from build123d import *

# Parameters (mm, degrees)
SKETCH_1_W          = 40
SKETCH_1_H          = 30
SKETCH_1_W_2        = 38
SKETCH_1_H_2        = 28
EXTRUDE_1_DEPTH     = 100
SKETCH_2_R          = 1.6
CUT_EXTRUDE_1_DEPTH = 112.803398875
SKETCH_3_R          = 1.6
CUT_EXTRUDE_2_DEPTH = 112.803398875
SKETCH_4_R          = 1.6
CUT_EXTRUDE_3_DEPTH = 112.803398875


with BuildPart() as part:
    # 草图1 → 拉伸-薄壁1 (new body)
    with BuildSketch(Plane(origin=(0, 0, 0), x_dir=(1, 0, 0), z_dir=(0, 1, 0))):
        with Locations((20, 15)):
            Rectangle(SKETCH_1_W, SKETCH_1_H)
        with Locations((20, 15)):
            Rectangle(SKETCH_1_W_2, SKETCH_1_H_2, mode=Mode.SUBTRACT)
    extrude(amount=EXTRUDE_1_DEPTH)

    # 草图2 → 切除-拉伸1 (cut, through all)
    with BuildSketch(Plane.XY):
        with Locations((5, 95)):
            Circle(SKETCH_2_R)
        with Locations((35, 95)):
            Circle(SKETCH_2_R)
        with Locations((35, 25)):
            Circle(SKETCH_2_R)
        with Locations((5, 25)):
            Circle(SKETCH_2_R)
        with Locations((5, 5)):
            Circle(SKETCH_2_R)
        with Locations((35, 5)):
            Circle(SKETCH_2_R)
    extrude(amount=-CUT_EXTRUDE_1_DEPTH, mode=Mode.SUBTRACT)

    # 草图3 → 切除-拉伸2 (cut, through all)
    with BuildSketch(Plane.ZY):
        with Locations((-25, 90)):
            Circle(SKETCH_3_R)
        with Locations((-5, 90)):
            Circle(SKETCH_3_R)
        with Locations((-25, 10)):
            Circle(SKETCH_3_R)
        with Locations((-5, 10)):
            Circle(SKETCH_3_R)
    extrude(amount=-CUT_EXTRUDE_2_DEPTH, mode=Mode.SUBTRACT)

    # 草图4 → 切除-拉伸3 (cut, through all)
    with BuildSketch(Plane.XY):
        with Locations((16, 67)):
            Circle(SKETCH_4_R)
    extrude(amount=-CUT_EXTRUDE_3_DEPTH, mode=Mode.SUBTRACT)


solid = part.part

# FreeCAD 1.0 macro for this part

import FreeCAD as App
import Part
import Sketcher

V = App.Vector
Q = App.Units.Quantity

doc = App.newDocument("Part")
body = doc.addObject("PartDesign::Body", "Body")

# Sketch on XZ plane
sketch1 = body.newObject("Sketcher::SketchObject", "Sketch")
sketch1.AttachmentSupport = (doc.getObject("XZ_Plane"), [""])
sketch1.MapMode = "FlatFace"
sketch1.addGeometry(Part.LineSegment(V(0, -30, 0), V(0, 0, 0)), False)
sketch1.addGeometry(Part.LineSegment(V(0, 0, 0), V(40, 0, 0)), False)
sketch1.addGeometry(Part.LineSegment(V(40, 0, 0), V(40, -30, 0)), False)
sketch1.addGeometry(Part.LineSegment(V(40, -30, 0), V(0, -30, 0)), False)
sketch1.addGeometry(Part.LineSegment(V(39, -1, 0), V(1, -1, 0)), False)
sketch1.addGeometry(Part.LineSegment(V(1, -1, 0), V(1, -29, 0)), False)
sketch1.addGeometry(Part.LineSegment(V(1, -29, 0), V(39, -29, 0)), False)
sketch1.addGeometry(Part.LineSegment(V(39, -29, 0), V(39, -1, 0)), False)
sketch1.addConstraint(Sketcher.Constraint("Coincident", 0, 2, 1, 1))
sketch1.addConstraint(Sketcher.Constraint("Coincident", 1, 2, 2, 1))
sketch1.addConstraint(Sketcher.Constraint("Coincident", 2, 2, 3, 1))
sketch1.addConstraint(Sketcher.Constraint("Coincident", 3, 2, 0, 1))
sketch1.addConstraint(Sketcher.Constraint("Coincident", 4, 2, 5, 1))
sketch1.addConstraint(Sketcher.Constraint("Coincident", 5, 2, 6, 1))
sketch1.addConstraint(Sketcher.Constraint("Coincident", 6, 2, 7, 1))
sketch1.addConstraint(Sketcher.Constraint("Coincident", 7, 2, 4, 1))
sketch1.addConstraint(Sketcher.Constraint("Vertical", 0))
sketch1.addConstraint(Sketcher.Constraint("Horizontal", 1))
sketch1.addConstraint(Sketcher.Constraint("Vertical", 2))
sketch1.addConstraint(Sketcher.Constraint("Horizontal", 3))
sketch1.addConstraint(Sketcher.Constraint("Horizontal", 4))
sketch1.addConstraint(Sketcher.Constraint("Vertical", 5))
sketch1.addConstraint(Sketcher.Constraint("Horizontal", 6))
sketch1.addConstraint(Sketcher.Constraint("Vertical", 7))
sketch1.addConstraint(Sketcher.Constraint("Coincident", 0, 2, -1, 1))
sketch1.addConstraint(Sketcher.Constraint("DistanceX", 1, 1, 1, 2, Q("40 mm")))
sketch1.addConstraint(Sketcher.Constraint("DistanceX", 4, 2, 4, 1, Q("38 mm")))
sketch1.addConstraint(Sketcher.Constraint("DistanceY", 0, 1, 0, 2, Q("30 mm")))
sketch1.addConstraint(Sketcher.Constraint("DistanceY", 5, 2, 5, 1, Q("28 mm")))
sketch1.addConstraint(Sketcher.Constraint("DistanceX", -1, 1, 4, 2, Q("1 mm")))
sketch1.addConstraint(Sketcher.Constraint("DistanceY", 4, 2, -1, 1, Q("1 mm")))
pad1 = body.newObject("PartDesign::Pad", "Pad")
pad1.Profile = sketch1
pad1.Length = 100
pad1.Reversed = True

# Sketch on XY plane
sketch2 = body.newObject("Sketcher::SketchObject", "Sketch001")
sketch2.AttachmentSupport = (doc.getObject("XY_Plane"), [""])
sketch2.MapMode = "FlatFace"
sketch2.addGeometry(Part.Circle(V(5, 95, 0), V(0, 0, 1), 1.6), False)
sketch2.addGeometry(Part.Circle(V(35, 95, 0), V(0, 0, 1), 1.6), False)
sketch2.addGeometry(Part.Circle(V(35, 25, 0), V(0, 0, 1), 1.6), False)
sketch2.addGeometry(Part.Circle(V(5, 25, 0), V(0, 0, 1), 1.6), False)
sketch2.addGeometry(Part.Circle(V(5, 5, 0), V(0, 0, 1), 1.6), False)
sketch2.addGeometry(Part.Circle(V(35, 5, 0), V(0, 0, 1), 1.6), False)
sketch2.addConstraint(Sketcher.Constraint("Equal", 0, 1))
sketch2.addConstraint(Sketcher.Constraint("Equal", 1, 2))
sketch2.addConstraint(Sketcher.Constraint("Equal", 2, 3))
sketch2.addConstraint(Sketcher.Constraint("Equal", 3, 4))
sketch2.addConstraint(Sketcher.Constraint("Equal", 4, 5))
sketch2.addConstraint(Sketcher.Constraint("Horizontal", 0, 3, 1, 3))
sketch2.addConstraint(Sketcher.Constraint("Horizontal", 2, 3, 3, 3))
sketch2.addConstraint(Sketcher.Constraint("Horizontal", 4, 3, 5, 3))
sketch2.addConstraint(Sketcher.Constraint("Vertical", 1, 3, 2, 3))
sketch2.addConstraint(Sketcher.Constraint("Vertical", 0, 3, 3, 3))
sketch2.addConstraint(Sketcher.Constraint("Vertical", 3, 3, 4, 3))
sketch2.addConstraint(Sketcher.Constraint("Vertical", 2, 3, 5, 3))
sketch2.addConstraint(Sketcher.Constraint("Diameter", 0, Q("3.2 mm")))
sketch2.addConstraint(Sketcher.Constraint("DistanceX", -1, 1, 0, 3, Q("5 mm")))
sketch2.addConstraint(Sketcher.Constraint("DistanceY", -1, 1, 0, 3, Q("95 mm")))
sketch2.addConstraint(Sketcher.Constraint("DistanceX", -1, 1, 1, 3, Q("35 mm")))
sketch2.addConstraint(Sketcher.Constraint("DistanceY", -1, 1, 2, 3, Q("25 mm")))
sketch2.addConstraint(Sketcher.Constraint("DistanceY", -1, 1, 4, 3, Q("5 mm")))
pocket1 = body.newObject("PartDesign::Pocket", "Pocket")
pocket1.Profile = sketch2
pocket1.Type = "ThroughAll"

# Sketch on YZ plane
sketch3 = body.newObject("Sketcher::SketchObject", "Sketch002")
sketch3.AttachmentSupport = (doc.getObject("YZ_Plane"), [""])
sketch3.MapMode = "FlatFace"
sketch3.addGeometry(Part.Circle(V(90, -25, 0), V(0, 0, 1), 1.6), False)
sketch3.addGeometry(Part.Circle(V(90, -5, 0), V(0, 0, 1), 1.6), False)
sketch3.addGeometry(Part.Circle(V(10, -25, 0), V(0, 0, 1), 1.6), False)
sketch3.addGeometry(Part.Circle(V(10, -5, 0), V(0, 0, 1), 1.6), False)
sketch3.addConstraint(Sketcher.Constraint("Equal", 0, 1))
sketch3.addConstraint(Sketcher.Constraint("Equal", 1, 2))
sketch3.addConstraint(Sketcher.Constraint("Equal", 2, 3))
sketch3.addConstraint(Sketcher.Constraint("Horizontal", 0, 3, 2, 3))
sketch3.addConstraint(Sketcher.Constraint("Horizontal", 1, 3, 3, 3))
sketch3.addConstraint(Sketcher.Constraint("Vertical", 0, 3, 1, 3))
sketch3.addConstraint(Sketcher.Constraint("Vertical", 2, 3, 3, 3))
sketch3.addConstraint(Sketcher.Constraint("Diameter", 0, Q("3.2 mm")))
sketch3.addConstraint(Sketcher.Constraint("DistanceX", -1, 1, 0, 3, Q("90 mm")))
sketch3.addConstraint(Sketcher.Constraint("DistanceY", 0, 3, -1, 1, Q("25 mm")))
sketch3.addConstraint(Sketcher.Constraint("DistanceY", 1, 3, -1, 1, Q("5 mm")))
sketch3.addConstraint(Sketcher.Constraint("DistanceX", -1, 1, 2, 3, Q("10 mm")))
pocket2 = body.newObject("PartDesign::Pocket", "Pocket001")
pocket2.Profile = sketch3
pocket2.Type = "ThroughAll"
pocket2.Reversed = True

# Sketch on XY plane
sketch4 = body.newObject("Sketcher::SketchObject", "Sketch003")
sketch4.AttachmentSupport = (doc.getObject("XY_Plane"), [""])
sketch4.MapMode = "FlatFace"
sketch4.addGeometry(Part.Circle(V(16, 67, 0), V(0, 0, 1), 1.6), False)
sketch4.addConstraint(Sketcher.Constraint("Diameter", 0, Q("3.2 mm")))
sketch4.addConstraint(Sketcher.Constraint("DistanceX", -1, 1, 0, 3, Q("16 mm")))
sketch4.addConstraint(Sketcher.Constraint("DistanceY", -1, 1, 0, 3, Q("67 mm")))
pocket3 = body.newObject("PartDesign::Pocket", "Pocket002")
pocket3.Profile = sketch4
pocket3.Type = "ThroughAll"

doc.recompute()
